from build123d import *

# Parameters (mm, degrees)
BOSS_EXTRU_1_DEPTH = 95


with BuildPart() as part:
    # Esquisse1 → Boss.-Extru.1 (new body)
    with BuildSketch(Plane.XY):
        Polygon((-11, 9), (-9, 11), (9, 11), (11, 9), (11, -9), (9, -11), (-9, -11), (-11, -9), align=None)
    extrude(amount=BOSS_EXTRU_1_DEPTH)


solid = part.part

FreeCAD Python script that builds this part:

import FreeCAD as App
import Part
import Sketcher
Q = App.Units.Quantity


def add_polygon(sketch, points):
    """Adds a closed chain of lines whose ends are joined by coincident constraints."""
    first, n = sketch.GeometryCount, len(points)
    for a, b in zip(points, points[1:] + points[:1]):
        sketch.addGeometry(Part.LineSegment(App.Vector(*a, 0), App.Vector(*b, 0)), False)
    for i in range(n):
        sketch.addConstraint(Sketcher.Constraint("Coincident", first + i, 2, first + (i + 1) % n, 1))

doc = App.newDocument("Part")
params = doc.addObject("Spreadsheet::Sheet", "Params")
for row, (alias, value) in enumerate([
    ("sketch1_width", "18 mm"),
    ("pad1_length", "95 mm"),
], start=1):
    params.set(f"A{row}", alias)
    params.set(f"B{row}", "=" + value)
    params.setAlias(f"B{row}", alias)

body = doc.addObject("PartDesign::Body", "Body")

sketch1 = body.newObject("Sketcher::SketchObject", "Sketch")
sketch1.AttachmentSupport = (doc.getObject("XY_Plane"), [""])
sketch1.MapMode = "FlatFace"
add_polygon(sketch1, [(-9, 11), (-11, 9), (-11, -9), (-9, -11), (9, -11), (11, -9), (11, 9), (9, 11)])
sketch1.addConstraint(Sketcher.Constraint("Vertical", 1))
sketch1.addConstraint(Sketcher.Constraint("Horizontal", 3))
sketch1.addConstraint(Sketcher.Constraint("Vertical", 5))
sketch1.addConstraint(Sketcher.Constraint("Horizontal", 7))
sketch1.addConstraint(Sketcher.Constraint("Symmetric", 0, 2, 4, 2, -1, 1))
sketch1.addConstraint(Sketcher.Constraint("Symmetric", 2, 2, 6, 2, -1, 1))
sketch1.addConstraint(Sketcher.Constraint("Perpendicular", 0, 2))
sketch1.addConstraint(Sketcher.Constraint("Perpendicular", 2, 4))
sketch1.addConstraint(Sketcher.Constraint("Perpendicular", 4, 6))
sketch1.addConstraint(Sketcher.Constraint("Horizontal", 1, 2, 4, 2))
sketch1.addConstraint(Sketcher.Constraint("Vertical", 3, 2, 6, 2))
sketch1.addConstraint(Sketcher.Constraint("Equal", 7, 1))
sketch1.addConstraint(Sketcher.Constraint("DistanceX", 3, 1, 3, 2, Q("18 mm")))
sketch1.addConstraint(Sketcher.Constraint("DistanceX", 0, 2, -1, 1, Q("11 mm")))
sketch1.setExpression("Constraints[20]", "Params.sketch1_width")
pad1 = body.newObject("PartDesign::Pad", "Pad")
pad1.Profile = sketch1
pad1.setExpression("Length", "Params.pad1_length")

doc.recompute()
